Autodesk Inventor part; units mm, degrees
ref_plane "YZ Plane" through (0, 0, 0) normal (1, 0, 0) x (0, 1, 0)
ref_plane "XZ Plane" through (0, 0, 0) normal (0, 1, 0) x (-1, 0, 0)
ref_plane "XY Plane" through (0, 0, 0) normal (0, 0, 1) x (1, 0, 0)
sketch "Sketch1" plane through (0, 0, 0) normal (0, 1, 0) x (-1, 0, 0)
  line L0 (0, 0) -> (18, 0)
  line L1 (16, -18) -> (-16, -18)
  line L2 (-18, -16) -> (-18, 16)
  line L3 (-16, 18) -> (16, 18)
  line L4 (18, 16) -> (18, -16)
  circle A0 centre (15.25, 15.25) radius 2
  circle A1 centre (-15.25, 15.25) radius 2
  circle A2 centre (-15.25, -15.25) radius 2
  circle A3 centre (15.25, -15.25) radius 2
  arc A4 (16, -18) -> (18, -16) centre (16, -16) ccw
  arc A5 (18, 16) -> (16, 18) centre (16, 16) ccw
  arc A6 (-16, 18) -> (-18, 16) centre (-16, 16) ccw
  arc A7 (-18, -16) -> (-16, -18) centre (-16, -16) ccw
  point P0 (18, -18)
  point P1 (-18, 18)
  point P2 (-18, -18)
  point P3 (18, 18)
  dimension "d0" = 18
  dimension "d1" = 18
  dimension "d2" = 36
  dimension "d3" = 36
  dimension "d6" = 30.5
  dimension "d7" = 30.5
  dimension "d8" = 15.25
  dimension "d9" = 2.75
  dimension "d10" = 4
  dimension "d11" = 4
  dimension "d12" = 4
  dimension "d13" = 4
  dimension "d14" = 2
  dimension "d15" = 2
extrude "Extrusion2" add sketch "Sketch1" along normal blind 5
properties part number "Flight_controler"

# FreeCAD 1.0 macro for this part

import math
import FreeCAD as App
import Part
import Sketcher

doc = App.newDocument("Part")
body = doc.addObject("PartDesign::Body", "Body")

sketch1 = body.newObject("Sketcher::SketchObject", "Sketch")
sketch1.AttachmentSupport = (doc.getObject("XZ_Plane"), [""])
sketch1.MapMode = "FlatFace"
sketch1.addGeometry(Part.LineSegment(App.Vector(16, -18, 0), App.Vector(-16, -18, 0)), False)
sketch1.addGeometry(Part.ArcOfCircle(Part.Circle(App.Vector(-16, -16, 0), App.Vector(0, 0, 1), 2), math.radians(180), math.radians(270)), False)
sketch1.addGeometry(Part.LineSegment(App.Vector(-18, -16, 0), App.Vector(-18, 16, 0)), False)
sketch1.addGeometry(Part.ArcOfCircle(Part.Circle(App.Vector(-16, 16, 0), App.Vector(0, 0, 1), 2), math.radians(90), math.radians(180)), False)
sketch1.addGeometry(Part.LineSegment(App.Vector(-16, 18, 0), App.Vector(16, 18, 0)), False)
sketch1.addGeometry(Part.ArcOfCircle(Part.Circle(App.Vector(16, 16, 0), App.Vector(0, 0, 1), 2), math.radians(0), math.radians(90)), False)
sketch1.addGeometry(Part.LineSegment(App.Vector(18, 16, 0), App.Vector(18, -16, 0)), False)
sketch1.addGeometry(Part.ArcOfCircle(Part.Circle(App.Vector(16, -16, 0), App.Vector(0, 0, 1), 2), math.radians(-90), math.radians(0)), False)
sketch1.addGeometry(Part.Circle(App.Vector(15.2, -15.2, 0), App.Vector(0, 0, 1), 2), False)
sketch1.addGeometry(Part.Circle(App.Vector(-15.2, -15.2, 0), App.Vector(0, 0, 1), 2), False)
sketch1.addGeometry(Part.Circle(App.Vector(15.2, 15.2, 0), App.Vector(0, 0, 1), 2), False)
sketch1.addGeometry(Part.Circle(App.Vector(-15.2, 15.2, 0), App.Vector(0, 0, 1), 2), False)
sketch1.addConstraint(Sketcher.Constraint("Tangent", 0, 2, 1, 2))
sketch1.addConstraint(Sketcher.Constraint("Tangent", 1, 1, 2, 1))
sketch1.addConstraint(Sketcher.Constraint("Tangent", 2, 2, 3, 2))
sketch1.addConstraint(Sketcher.Constraint("Tangent", 3, 1, 4, 1))
sketch1.addConstraint(Sketcher.Constraint("Tangent", 4, 2, 5, 2))
sketch1.addConstraint(Sketcher.Constraint("Tangent", 5, 1, 6, 1))
sketch1.addConstraint(Sketcher.Constraint("Tangent", 6, 2, 7, 2))
sketch1.addConstraint(Sketcher.Constraint("Tangent", 7, 1, 0, 1))
sketch1.addConstraint(Sketcher.Constraint("Horizontal", 0))
sketch1.addConstraint(Sketcher.Constraint("Vertical", 2))
sketch1.addConstraint(Sketcher.Constraint("Horizontal", 4))
sketch1.addConstraint(Sketcher.Constraint("Vertical", 6))
sketch1.addConstraint(Sketcher.Constraint("Equal", 1, 3))
sketch1.addConstraint(Sketcher.Constraint("Equal", 3, 5))
sketch1.addConstraint(Sketcher.Constraint("Equal", 5, 7))
sketch1.addConstraint(Sketcher.Constraint("Equal", 7, 8))
sketch1.addConstraint(Sketcher.Constraint("Equal", 8, 9))
sketch1.addConstraint(Sketcher.Constraint("Equal", 9, 10))
sketch1.addConstraint(Sketcher.Constraint("Equal", 10, 11))
sketch1.addConstraint(Sketcher.Constraint("Symmetric", 1, 3, 5, 3, -1, 1))
sketch1.addConstraint(Sketcher.Constraint("Symmetric", 9, 3, 10, 3, -1, 1))
sketch1.addConstraint(Sketcher.Constraint("Symmetric", 8, 3, 11, 3, -1, 1))
sketch1.addConstraint(Sketcher.Constraint("Symmetric", 8, 3, 9, 3, -2))
sketch1.addConstraint(Sketcher.Constraint("Equal", 4, 2))
sketch1.addConstraint(Sketcher.Constraint("Diameter", 8, 4.0))
sketch1.addConstraint(Sketcher.Constraint("DistanceY", 0, 2, -1, 1, 18.0))
sketch1.addConstraint(Sketcher.Constraint("DistanceX", 9, 3, 8, 3, 30.5))
sketch1.addConstraint(Sketcher.Constraint("DistanceY", 8, 3, 10, 3, 30.5))
pad1 = body.newObject("PartDesign::Pad", "Pad")
pad1.Profile = sketch1
pad1.Length = 5
pad1.Reversed = True

doc.recompute()
